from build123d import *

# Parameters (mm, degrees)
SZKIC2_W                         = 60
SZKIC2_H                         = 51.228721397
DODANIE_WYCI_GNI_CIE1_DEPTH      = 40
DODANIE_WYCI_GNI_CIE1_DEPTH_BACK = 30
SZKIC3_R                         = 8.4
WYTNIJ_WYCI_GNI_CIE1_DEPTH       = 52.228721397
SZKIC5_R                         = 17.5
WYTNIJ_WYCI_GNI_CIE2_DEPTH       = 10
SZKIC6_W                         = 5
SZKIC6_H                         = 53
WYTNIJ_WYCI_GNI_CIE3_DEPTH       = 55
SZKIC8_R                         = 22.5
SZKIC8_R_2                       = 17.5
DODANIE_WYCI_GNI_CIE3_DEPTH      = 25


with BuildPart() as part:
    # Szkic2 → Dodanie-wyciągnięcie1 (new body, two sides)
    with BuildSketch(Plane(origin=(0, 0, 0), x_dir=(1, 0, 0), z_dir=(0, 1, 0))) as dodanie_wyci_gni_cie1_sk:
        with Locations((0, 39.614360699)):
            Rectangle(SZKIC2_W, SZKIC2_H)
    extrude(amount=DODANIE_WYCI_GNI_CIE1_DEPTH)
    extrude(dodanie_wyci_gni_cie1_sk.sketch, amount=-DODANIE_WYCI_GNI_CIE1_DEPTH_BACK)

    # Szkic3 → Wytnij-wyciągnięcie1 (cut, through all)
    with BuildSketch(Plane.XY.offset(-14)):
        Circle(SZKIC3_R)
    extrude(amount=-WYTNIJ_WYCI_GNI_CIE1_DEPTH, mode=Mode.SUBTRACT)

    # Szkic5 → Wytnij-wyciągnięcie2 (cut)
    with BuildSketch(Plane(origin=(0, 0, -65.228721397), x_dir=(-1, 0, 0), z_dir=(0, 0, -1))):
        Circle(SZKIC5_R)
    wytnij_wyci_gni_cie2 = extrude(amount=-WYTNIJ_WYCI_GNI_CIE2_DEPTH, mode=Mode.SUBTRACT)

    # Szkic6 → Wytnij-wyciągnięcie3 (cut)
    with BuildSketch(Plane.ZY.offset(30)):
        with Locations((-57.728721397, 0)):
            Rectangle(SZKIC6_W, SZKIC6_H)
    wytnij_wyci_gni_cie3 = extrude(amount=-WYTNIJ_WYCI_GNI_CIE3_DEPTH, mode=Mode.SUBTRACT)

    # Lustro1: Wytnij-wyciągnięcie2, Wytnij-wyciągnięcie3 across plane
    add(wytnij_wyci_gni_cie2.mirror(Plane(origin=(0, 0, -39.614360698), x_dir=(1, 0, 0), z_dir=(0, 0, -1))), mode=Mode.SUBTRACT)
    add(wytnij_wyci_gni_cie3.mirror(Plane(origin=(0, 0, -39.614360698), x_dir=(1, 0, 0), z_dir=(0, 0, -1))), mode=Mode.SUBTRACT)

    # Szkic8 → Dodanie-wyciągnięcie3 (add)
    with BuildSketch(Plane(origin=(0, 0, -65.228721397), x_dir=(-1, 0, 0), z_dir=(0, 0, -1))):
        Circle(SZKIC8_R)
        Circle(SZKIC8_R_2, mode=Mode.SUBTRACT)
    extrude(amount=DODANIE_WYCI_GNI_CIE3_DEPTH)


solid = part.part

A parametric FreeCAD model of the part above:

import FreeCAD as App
import Part
import Sketcher
from FreeCAD import Vector

doc = App.newDocument("Part")
body = doc.addObject("PartDesign::Body", "Body")

sketch1 = body.newObject("Sketcher::SketchObject", "Sketch")
sketch1.AttachmentSupport = (doc.getObject("XZ_Plane"), [""])
sketch1.MapMode = "FlatFace"
sketch1.addGeometry([
    Part.LineSegment(Vector(-30, -65, 0), Vector(-30, -14, 0)),
    Part.LineSegment(Vector(-30, -14, 0), Vector(30, -14, 0)),
    Part.LineSegment(Vector(30, -14, 0), Vector(30, -65, 0)),
    Part.LineSegment(Vector(30, -65, 0), Vector(-30, -65, 0)),
], False)
sketch1.addConstraint([
    Sketcher.Constraint("Coincident", 0, 2, 1, 1),
    Sketcher.Constraint("Coincident", 1, 2, 2, 1),
    Sketcher.Constraint("Coincident", 2, 2, 3, 1),
    Sketcher.Constraint("Coincident", 3, 2, 0, 1),
    Sketcher.Constraint("Vertical", 0),
    Sketcher.Constraint("Horizontal", 1),
    Sketcher.Constraint("Vertical", 2),
    Sketcher.Constraint("Horizontal", 3),
    Sketcher.Constraint("DistanceX", 1, 1, 1, 2, 60.0),
    Sketcher.Constraint("DistanceX", 0, 2, -1, 1, 30.0),
    Sketcher.Constraint("DistanceY", 0, 2, -1, 1, 14.0),
    Sketcher.Constraint("DistanceY", 0, 1, 0, 2, 51.228721),
])
pad1 = body.newObject("PartDesign::Pad", "Pad")
pad1.Profile = sketch1
pad1.Type = "TwoLengths"
pad1.Length = 40
pad1.Length2 = 30
pad1.Reversed = True

sketch2 = body.newObject("Sketcher::SketchObject", "Sketch001")
sketch2.AttachmentSupport = (doc.getObject("XY_Plane"), [""])
sketch2.MapMode = "FlatFace"
sketch2.AttachmentOffset = App.Placement(Vector(0, 0, -14), App.Rotation())
sketch2.addGeometry(Part.Circle(Vector(0, 0, 0), Vector(0, 0, 1), 8), False)
sketch2.addConstraint([
    Sketcher.Constraint("Coincident", 0, 3, -1, 1),
    Sketcher.Constraint("Diameter", 0, 16.8),
])
pocket1 = body.newObject("PartDesign::Pocket", "Pocket")
pocket1.Profile = sketch2
pocket1.Type = "ThroughAll"

sketch3 = body.newObject("Sketcher::SketchObject", "Sketch002")
sketch3.AttachmentSupport = (doc.getObject("XY_Plane"), [""])
sketch3.MapMode = "FlatFace"
sketch3.AttachmentOffset = App.Placement(Vector(0, 0, -65.228721), App.Rotation())
sketch3.addGeometry(Part.Circle(Vector(0, 0, 0), Vector(0, 0, 1), 18), False)
sketch3.addConstraint([
    Sketcher.Constraint("Coincident", 0, 3, -1, 1),
    Sketcher.Constraint("Diameter", 0, 35.0),
])
pocket2 = body.newObject("PartDesign::Pocket", "Pocket001")
pocket2.Profile = sketch3
pocket2.Length = 10
pocket2.Reversed = True

sketch4 = body.newObject("Sketcher::SketchObject", "Sketch003")
sketch4.AttachmentSupport = (doc.getObject("YZ_Plane"), [""])
sketch4.MapMode = "FlatFace"
sketch4.AttachmentOffset = App.Placement(Vector(0, 0, -30), App.Rotation())
sketch4.addGeometry([
    Part.LineSegment(Vector(26, -60, 0), Vector(-26, -60, 0)),
    Part.LineSegment(Vector(-26, -60, 0), Vector(-26, -55, 0)),
    Part.LineSegment(Vector(-26, -55, 0), Vector(26, -55, 0)),
    Part.LineSegment(Vector(26, -55, 0), Vector(26, -60, 0)),
], False)
sketch4.addConstraint([
    Sketcher.Constraint("Coincident", 0, 2, 1, 1),
    Sketcher.Constraint("Coincident", 1, 2, 2, 1),
    Sketcher.Constraint("Coincident", 2, 2, 3, 1),
    Sketcher.Constraint("Coincident", 3, 2, 0, 1),
    Sketcher.Constraint("Horizontal", 0),
    Sketcher.Constraint("Vertical", 1),
    Sketcher.Constraint("Horizontal", 2),
    Sketcher.Constraint("Vertical", 3),
    Sketcher.Constraint("DistanceX", 0, 2, 0, 1, 53.0),
    Sketcher.Constraint("DistanceY", 1, 1, 1, 2, 5.0),
    Sketcher.Constraint("DistanceX", 0, 2, -1, 1, 26.5),
    Sketcher.Constraint("DistanceY", 0, 2, -1, 1, 60.228721),
])
pocket3 = body.newObject("PartDesign::Pocket", "Pocket002")
pocket3.Profile = sketch4
pocket3.Length = 55
pocket3.Reversed = True
doc.recompute()

datumplane = body.newObject("PartDesign::Plane", "DatumPlane")
datumplane.AttachmentSupport = (doc.getObject("XY_Plane"), [""])
datumplane.MapMode = "FlatFace"
datumplane.AttachmentOffset = App.Placement(Vector(0, 0, -39.614361), App.Rotation())
mirrored = body.newObject("PartDesign::Mirrored", "Mirrored")
mirrored.Originals = [pocket2, pocket3]
mirrored.MirrorPlane = (datumplane, [""])
body.Tip = mirrored

sketch5 = body.newObject("Sketcher::SketchObject", "Sketch004")
sketch5.AttachmentSupport = (doc.getObject("XY_Plane"), [""])
sketch5.MapMode = "FlatFace"
sketch5.AttachmentOffset = App.Placement(Vector(0, 0, -65.228721), App.Rotation())
sketch5.addGeometry([
    Part.Circle(Vector(0, 0, 0), Vector(0, 0, 1), 22),
    Part.Circle(Vector(0, 0, 0), Vector(0, 0, 1), 18),
], False)
sketch5.addConstraint([
    Sketcher.Constraint("Coincident", 0, 3, -1, 1),
    Sketcher.Constraint("Coincident", 1, 3, -1, 1),
    Sketcher.Constraint("Diameter", 0, 45.0),
    Sketcher.Constraint("Diameter", 1, 35.0),
])
pad2 = body.newObject("PartDesign::Pad", "Pad001")
pad2.Profile = sketch5
pad2.Length = 25
pad2.Reversed = True

doc.recompute()
